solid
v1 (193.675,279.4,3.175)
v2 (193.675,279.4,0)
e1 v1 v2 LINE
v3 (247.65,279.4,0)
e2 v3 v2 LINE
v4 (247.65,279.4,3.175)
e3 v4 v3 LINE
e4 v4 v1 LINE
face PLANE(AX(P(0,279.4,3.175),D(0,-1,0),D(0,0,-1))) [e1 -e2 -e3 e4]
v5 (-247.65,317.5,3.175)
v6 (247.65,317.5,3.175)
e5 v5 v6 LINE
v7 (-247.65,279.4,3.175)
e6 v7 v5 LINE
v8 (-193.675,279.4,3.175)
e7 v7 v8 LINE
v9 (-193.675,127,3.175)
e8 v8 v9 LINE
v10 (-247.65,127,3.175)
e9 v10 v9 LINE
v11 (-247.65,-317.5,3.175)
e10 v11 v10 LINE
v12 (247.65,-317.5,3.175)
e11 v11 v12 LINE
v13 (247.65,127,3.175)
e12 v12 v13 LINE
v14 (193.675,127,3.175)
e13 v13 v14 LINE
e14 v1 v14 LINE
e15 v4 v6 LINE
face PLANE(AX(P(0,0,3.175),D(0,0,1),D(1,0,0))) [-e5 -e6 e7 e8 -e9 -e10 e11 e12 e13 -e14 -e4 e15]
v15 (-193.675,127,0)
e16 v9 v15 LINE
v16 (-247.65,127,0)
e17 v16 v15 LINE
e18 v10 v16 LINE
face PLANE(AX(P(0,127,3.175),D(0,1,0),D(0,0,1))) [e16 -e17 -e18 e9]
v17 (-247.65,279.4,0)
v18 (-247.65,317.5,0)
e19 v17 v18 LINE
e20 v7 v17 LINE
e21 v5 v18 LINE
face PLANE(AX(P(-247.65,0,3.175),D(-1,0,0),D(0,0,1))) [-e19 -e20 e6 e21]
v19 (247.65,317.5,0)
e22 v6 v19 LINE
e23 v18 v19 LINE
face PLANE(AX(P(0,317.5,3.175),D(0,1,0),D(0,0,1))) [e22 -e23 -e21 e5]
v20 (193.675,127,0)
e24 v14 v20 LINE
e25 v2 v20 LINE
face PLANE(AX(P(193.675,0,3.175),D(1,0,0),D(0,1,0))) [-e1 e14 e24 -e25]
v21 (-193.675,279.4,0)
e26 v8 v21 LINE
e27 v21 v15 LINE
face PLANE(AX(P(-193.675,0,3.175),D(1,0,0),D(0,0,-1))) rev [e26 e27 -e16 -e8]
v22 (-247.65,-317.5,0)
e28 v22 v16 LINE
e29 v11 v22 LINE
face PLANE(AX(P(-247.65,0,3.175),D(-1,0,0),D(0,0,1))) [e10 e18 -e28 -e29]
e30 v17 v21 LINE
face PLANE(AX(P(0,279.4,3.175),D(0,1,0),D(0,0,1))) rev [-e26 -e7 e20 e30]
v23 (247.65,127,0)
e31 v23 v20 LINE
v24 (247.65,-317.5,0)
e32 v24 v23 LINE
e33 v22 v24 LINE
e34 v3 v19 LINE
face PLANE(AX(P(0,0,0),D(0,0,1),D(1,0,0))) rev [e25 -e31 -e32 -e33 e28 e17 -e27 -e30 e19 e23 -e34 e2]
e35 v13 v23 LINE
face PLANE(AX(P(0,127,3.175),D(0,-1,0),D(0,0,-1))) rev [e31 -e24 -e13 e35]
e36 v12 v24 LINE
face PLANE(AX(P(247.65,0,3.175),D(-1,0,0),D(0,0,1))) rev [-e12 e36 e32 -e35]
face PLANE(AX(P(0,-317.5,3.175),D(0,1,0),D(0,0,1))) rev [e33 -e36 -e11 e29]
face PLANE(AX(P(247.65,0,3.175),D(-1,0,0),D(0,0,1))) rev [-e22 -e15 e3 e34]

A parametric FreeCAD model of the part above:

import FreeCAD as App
import Part
import Sketcher

V = App.Vector
Q = App.Units.Quantity


def add_polygon(sketch, points):
    """Adds a closed chain of lines whose ends are joined by coincident constraints."""
    first, n = sketch.GeometryCount, len(points)
    for a, b in zip(points, points[1:] + points[:1]):
        sketch.addGeometry(Part.LineSegment(App.Vector(*a, 0), App.Vector(*b, 0)), False)
    for i in range(n):
        sketch.addConstraint(Sketcher.Constraint("Coincident", first + i, 2, first + (i + 1) % n, 1))

doc = App.newDocument("Part")
body = doc.addObject("PartDesign::Body", "Body")

# Sketch on XY plane
sketch1 = body.newObject("Sketcher::SketchObject", "Sketch")
sketch1.AttachmentSupport = (doc.getObject("XY_Plane"), [""])
sketch1.MapMode = "FlatFace"
add_polygon(sketch1, [(-248, 127), (-248, -318), (248, -318), (248, 127), (194, 127), (194, 279), (248, 279), (248, 318), (-248, 318), (-248, 279), (-194, 279), (-194, 127)])  # lines 0-11
sketch1.addConstraint(Sketcher.Constraint("Vertical", 0))
sketch1.addConstraint(Sketcher.Constraint("Horizontal", 1))
sketch1.addConstraint(Sketcher.Constraint("Vertical", 2))
sketch1.addConstraint(Sketcher.Constraint("Horizontal", 3))
sketch1.addConstraint(Sketcher.Constraint("Vertical", 4))
sketch1.addConstraint(Sketcher.Constraint("Horizontal", 5))
sketch1.addConstraint(Sketcher.Constraint("Vertical", 6))
sketch1.addConstraint(Sketcher.Constraint("Horizontal", 7))
sketch1.addConstraint(Sketcher.Constraint("Vertical", 8))
sketch1.addConstraint(Sketcher.Constraint("Horizontal", 9))
sketch1.addConstraint(Sketcher.Constraint("Vertical", 10))
sketch1.addConstraint(Sketcher.Constraint("Horizontal", 11))
sketch1.addConstraint(Sketcher.Constraint("Symmetric", 0, 2, 6, 2, -1, 1))
sketch1.addConstraint(Sketcher.Constraint("Symmetric", 5, 2, 8, 2, -2))
sketch1.addConstraint(Sketcher.Constraint("Symmetric", 3, 2, 10, 2, -2))
sketch1.addConstraint(Sketcher.Constraint("Vertical", 2, 2, 5, 2))
sketch1.addConstraint(Sketcher.Constraint("DistanceY", 4, 1, 4, 2, Q("6 in")))
sketch1.addConstraint(Sketcher.Constraint("DistanceX", 1, 1, 1, 2, Q("19.5 in")))
sketch1.addConstraint(Sketcher.Constraint("DistanceY", 0, 2, 0, 1, Q("17.5 in")))
sketch1.addConstraint(Sketcher.Constraint("DistanceY", 6, 1, 6, 2, Q("1.5 in")))
sketch1.addConstraint(Sketcher.Constraint("DistanceX", 3, 2, 3, 1, Q("2.125 in")))
pad1 = body.newObject("PartDesign::Pad", "Pad")
pad1.Profile = sketch1
pad1.Length = Q("0.125 in")

doc.recompute()
